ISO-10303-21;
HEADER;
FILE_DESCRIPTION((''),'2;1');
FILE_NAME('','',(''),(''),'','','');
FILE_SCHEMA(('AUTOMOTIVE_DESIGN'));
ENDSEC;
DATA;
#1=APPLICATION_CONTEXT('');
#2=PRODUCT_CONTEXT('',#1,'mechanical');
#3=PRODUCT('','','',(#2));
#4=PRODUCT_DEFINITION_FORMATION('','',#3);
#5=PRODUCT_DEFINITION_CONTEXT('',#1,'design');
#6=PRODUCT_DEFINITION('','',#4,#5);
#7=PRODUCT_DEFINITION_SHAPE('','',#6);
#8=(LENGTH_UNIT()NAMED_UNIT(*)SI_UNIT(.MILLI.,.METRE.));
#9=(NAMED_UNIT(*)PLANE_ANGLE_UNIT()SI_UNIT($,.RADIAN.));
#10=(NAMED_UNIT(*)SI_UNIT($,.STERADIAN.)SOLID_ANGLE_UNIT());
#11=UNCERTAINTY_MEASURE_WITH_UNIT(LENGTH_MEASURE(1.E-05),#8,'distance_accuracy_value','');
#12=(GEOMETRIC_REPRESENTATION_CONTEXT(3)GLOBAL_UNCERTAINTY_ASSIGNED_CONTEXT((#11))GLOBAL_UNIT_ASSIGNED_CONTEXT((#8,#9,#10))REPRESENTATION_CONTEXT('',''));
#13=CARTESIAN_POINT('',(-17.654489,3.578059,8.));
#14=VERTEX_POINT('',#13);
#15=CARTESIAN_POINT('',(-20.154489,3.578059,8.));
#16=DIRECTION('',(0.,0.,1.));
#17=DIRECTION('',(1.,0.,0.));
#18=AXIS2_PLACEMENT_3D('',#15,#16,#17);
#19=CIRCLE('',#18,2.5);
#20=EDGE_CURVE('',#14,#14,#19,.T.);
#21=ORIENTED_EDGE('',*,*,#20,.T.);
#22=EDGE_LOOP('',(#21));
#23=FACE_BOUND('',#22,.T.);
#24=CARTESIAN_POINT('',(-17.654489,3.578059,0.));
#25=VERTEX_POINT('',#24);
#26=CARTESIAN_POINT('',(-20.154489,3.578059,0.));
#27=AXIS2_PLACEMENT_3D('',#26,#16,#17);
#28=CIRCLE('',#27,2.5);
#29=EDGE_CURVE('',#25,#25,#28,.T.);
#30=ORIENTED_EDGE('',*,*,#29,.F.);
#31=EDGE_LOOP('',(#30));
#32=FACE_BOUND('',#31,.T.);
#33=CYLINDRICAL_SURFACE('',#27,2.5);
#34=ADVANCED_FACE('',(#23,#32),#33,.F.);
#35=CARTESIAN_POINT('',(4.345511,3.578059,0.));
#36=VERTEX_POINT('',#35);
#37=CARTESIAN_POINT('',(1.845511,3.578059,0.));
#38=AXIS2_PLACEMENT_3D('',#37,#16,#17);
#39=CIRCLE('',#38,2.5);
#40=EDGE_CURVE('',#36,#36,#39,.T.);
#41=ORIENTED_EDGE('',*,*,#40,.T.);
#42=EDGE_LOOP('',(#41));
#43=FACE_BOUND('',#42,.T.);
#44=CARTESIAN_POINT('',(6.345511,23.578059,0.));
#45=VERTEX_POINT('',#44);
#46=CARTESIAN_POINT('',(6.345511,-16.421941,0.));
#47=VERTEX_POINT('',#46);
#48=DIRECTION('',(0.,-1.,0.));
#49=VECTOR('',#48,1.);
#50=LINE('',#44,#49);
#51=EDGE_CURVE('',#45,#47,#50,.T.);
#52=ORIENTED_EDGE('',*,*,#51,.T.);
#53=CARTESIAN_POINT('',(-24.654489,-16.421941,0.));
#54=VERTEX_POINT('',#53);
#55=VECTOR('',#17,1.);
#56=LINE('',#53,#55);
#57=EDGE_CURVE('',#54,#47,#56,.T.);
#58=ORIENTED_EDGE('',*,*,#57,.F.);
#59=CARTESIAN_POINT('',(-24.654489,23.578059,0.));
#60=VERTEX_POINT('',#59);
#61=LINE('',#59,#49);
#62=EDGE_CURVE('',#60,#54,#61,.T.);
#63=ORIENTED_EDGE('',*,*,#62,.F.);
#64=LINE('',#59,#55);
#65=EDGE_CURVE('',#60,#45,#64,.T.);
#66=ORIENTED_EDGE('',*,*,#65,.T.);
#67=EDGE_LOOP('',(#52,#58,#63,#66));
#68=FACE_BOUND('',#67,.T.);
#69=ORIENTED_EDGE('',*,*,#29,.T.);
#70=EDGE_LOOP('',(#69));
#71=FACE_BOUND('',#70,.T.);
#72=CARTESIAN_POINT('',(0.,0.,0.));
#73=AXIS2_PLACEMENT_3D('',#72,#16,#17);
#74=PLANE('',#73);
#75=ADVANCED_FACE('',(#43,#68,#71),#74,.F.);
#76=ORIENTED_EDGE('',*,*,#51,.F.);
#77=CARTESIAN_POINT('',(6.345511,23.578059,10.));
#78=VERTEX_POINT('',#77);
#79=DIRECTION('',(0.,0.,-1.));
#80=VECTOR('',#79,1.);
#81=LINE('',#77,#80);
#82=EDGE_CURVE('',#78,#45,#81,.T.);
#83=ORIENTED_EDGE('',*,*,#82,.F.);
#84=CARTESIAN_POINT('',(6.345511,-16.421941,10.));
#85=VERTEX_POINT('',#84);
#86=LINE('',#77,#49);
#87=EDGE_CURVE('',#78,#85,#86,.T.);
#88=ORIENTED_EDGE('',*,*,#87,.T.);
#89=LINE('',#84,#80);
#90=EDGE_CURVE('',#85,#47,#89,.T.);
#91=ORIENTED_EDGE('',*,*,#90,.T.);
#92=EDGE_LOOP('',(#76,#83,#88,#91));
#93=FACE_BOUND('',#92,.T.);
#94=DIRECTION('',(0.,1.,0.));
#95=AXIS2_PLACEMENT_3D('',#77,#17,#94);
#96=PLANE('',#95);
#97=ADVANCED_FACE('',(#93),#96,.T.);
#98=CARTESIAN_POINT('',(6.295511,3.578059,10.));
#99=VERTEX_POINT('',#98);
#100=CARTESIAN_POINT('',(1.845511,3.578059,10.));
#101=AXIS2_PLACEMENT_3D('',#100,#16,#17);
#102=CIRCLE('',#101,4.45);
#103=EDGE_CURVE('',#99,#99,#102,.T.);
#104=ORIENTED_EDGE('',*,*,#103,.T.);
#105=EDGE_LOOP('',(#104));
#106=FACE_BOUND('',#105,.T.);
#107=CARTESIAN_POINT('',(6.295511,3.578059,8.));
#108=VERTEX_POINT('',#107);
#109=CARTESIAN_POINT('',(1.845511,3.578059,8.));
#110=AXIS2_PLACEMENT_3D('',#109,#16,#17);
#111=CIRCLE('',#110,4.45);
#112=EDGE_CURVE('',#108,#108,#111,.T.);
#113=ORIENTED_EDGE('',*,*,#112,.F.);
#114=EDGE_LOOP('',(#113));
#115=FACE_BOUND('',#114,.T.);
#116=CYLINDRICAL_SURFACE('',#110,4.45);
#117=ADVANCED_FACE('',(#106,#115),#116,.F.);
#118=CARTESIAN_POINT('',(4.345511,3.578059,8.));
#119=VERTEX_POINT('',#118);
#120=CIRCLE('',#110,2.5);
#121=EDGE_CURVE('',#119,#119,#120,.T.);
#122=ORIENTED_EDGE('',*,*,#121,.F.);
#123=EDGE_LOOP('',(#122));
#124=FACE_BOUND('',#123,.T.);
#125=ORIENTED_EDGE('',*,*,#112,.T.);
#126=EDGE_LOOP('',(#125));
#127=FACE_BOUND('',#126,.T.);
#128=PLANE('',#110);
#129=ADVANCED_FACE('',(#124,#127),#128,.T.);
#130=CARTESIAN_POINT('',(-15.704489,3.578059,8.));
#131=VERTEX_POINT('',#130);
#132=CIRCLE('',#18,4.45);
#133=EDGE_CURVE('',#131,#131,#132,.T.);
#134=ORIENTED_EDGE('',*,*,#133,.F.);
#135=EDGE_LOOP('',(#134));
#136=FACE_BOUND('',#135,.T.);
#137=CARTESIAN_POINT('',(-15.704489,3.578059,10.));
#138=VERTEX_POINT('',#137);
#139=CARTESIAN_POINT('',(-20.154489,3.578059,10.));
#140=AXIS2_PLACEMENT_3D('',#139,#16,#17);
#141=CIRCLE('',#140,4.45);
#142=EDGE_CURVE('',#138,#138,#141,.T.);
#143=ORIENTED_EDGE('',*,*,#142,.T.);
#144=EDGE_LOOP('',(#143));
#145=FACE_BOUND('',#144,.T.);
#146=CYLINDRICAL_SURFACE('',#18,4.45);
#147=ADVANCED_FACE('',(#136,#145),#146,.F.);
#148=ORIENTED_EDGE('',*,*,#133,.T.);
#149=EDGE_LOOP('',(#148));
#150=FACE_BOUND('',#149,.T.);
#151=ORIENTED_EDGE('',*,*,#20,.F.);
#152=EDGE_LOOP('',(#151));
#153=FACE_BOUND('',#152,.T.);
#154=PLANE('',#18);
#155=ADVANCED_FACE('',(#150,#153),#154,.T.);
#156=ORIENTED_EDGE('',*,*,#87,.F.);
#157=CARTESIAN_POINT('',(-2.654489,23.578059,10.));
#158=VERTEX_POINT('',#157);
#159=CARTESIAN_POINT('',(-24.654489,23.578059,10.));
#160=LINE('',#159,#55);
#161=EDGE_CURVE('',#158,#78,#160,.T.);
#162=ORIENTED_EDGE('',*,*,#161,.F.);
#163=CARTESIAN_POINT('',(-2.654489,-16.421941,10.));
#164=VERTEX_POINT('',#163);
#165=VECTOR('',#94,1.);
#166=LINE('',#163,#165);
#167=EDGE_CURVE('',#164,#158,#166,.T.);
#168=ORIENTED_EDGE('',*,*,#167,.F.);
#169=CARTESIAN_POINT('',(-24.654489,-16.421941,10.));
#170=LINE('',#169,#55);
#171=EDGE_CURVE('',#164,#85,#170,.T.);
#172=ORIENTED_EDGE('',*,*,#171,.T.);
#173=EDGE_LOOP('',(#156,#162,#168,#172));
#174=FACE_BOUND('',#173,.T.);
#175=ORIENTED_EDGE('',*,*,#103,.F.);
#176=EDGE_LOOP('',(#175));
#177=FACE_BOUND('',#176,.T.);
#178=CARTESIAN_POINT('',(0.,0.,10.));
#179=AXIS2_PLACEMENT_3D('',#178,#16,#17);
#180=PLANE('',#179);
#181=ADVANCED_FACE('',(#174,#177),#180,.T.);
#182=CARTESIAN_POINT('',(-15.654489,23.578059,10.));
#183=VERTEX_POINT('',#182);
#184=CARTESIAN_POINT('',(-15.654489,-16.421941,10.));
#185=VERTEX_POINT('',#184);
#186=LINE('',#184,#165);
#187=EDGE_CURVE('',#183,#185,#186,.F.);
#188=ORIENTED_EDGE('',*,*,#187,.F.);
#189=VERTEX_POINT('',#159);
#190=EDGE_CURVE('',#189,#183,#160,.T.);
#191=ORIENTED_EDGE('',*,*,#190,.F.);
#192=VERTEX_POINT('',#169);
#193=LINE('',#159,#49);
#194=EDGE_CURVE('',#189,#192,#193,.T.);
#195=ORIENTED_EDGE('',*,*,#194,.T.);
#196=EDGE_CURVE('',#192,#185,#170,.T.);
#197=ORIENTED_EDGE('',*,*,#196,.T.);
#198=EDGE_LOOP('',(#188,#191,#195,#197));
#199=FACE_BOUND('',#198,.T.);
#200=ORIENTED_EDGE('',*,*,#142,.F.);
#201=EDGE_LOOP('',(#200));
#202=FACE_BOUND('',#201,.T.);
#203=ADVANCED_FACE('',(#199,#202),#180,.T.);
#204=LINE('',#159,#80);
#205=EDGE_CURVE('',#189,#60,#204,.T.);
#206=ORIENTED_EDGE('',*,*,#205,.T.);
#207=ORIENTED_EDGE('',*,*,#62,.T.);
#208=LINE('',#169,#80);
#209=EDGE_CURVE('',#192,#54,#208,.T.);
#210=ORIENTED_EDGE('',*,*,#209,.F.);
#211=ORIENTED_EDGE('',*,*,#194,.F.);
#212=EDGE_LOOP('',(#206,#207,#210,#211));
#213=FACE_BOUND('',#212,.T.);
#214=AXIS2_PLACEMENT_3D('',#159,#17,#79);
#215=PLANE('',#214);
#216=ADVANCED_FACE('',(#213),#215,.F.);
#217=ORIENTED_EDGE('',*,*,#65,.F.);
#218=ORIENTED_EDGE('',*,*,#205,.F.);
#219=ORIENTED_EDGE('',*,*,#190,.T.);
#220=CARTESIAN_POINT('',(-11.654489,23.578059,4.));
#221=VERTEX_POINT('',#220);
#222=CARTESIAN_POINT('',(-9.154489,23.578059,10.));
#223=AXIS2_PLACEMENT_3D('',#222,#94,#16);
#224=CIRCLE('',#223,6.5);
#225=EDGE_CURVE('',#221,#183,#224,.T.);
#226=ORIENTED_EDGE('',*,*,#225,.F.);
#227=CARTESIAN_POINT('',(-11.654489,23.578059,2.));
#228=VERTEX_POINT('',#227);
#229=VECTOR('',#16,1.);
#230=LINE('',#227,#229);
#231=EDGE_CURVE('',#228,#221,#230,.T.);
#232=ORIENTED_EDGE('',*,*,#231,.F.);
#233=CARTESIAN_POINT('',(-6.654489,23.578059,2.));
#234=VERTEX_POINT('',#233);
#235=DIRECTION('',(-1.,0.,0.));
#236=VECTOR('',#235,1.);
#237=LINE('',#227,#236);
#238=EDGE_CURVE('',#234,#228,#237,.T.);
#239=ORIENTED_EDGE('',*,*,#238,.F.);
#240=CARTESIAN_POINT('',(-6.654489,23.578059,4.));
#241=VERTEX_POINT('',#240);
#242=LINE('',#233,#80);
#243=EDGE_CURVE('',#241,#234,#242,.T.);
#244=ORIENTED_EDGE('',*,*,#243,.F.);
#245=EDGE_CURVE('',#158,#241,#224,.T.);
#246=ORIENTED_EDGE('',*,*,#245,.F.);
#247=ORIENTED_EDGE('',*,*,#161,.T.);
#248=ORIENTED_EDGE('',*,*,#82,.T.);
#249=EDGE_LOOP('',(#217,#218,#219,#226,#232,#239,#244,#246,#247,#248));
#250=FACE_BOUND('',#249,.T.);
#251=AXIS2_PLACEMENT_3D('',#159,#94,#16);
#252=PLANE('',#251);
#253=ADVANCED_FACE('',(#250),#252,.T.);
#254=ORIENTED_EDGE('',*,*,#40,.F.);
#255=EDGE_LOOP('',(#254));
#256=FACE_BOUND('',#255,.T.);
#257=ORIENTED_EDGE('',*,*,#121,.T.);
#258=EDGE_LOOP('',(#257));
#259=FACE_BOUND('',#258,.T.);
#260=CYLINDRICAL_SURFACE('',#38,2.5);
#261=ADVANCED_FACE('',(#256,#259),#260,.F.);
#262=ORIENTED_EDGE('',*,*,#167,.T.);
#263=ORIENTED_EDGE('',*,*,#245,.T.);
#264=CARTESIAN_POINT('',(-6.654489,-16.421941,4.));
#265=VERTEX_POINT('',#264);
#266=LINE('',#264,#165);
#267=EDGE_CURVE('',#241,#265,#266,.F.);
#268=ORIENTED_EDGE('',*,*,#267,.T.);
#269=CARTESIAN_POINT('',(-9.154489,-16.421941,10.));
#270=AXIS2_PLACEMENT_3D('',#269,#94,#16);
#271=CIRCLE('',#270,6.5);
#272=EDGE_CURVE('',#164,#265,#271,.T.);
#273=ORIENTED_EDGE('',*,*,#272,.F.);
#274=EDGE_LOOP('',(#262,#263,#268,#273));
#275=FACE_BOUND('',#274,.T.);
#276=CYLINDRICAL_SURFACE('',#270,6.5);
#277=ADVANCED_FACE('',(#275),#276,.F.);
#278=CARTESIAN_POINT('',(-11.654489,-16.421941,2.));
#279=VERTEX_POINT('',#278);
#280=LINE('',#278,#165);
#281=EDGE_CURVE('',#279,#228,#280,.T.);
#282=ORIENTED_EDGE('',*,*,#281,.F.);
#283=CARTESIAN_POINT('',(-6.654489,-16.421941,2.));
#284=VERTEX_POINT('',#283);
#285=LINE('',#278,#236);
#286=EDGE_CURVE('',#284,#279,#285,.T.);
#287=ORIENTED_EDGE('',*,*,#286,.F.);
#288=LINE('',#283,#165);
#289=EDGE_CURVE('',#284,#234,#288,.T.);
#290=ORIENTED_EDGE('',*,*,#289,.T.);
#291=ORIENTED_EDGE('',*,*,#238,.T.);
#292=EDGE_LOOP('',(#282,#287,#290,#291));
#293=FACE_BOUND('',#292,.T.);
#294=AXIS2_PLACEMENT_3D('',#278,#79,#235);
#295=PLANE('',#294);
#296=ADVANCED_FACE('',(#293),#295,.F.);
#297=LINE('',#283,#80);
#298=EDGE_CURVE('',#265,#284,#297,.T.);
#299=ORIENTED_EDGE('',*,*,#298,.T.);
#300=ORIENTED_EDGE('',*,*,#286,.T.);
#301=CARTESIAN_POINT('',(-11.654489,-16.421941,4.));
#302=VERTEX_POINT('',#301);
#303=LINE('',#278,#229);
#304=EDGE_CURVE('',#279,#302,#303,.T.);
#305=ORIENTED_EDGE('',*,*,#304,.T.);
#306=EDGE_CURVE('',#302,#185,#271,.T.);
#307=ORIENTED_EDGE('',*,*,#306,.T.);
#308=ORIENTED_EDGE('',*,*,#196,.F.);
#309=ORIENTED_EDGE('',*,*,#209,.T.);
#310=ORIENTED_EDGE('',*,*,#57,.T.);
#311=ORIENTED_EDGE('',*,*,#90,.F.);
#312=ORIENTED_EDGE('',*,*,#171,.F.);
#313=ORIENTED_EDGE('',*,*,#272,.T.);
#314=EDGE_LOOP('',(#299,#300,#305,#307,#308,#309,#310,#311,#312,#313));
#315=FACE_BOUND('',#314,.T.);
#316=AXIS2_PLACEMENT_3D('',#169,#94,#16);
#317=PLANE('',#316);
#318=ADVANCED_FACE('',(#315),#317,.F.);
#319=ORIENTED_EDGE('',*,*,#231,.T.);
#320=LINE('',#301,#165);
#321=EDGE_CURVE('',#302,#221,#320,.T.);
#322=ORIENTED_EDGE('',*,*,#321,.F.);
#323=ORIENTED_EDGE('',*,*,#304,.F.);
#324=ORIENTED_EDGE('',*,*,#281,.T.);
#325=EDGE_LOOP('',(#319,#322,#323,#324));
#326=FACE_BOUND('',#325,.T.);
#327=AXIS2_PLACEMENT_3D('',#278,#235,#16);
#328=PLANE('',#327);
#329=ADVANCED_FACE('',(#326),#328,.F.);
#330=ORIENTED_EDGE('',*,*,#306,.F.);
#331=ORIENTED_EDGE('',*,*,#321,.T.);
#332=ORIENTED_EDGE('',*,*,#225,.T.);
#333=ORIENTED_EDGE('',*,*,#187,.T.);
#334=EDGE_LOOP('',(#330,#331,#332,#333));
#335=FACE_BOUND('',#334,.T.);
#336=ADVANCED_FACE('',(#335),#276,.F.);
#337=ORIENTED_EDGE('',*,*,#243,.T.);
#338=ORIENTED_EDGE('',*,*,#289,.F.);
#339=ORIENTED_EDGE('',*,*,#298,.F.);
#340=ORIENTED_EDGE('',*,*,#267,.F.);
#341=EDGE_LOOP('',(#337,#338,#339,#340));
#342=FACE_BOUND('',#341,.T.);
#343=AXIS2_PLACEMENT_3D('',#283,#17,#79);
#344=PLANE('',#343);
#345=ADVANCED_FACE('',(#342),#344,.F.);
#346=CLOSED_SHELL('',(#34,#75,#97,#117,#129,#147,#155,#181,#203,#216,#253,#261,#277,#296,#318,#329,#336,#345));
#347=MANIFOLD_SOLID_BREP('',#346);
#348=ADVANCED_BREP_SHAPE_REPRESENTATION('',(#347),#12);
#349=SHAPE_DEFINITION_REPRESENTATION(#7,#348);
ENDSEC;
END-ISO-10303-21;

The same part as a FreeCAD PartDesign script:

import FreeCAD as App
import Part
import Sketcher

V = App.Vector


def add_polygon(sketch, points):
    """Adds a closed chain of lines whose ends are joined by coincident constraints."""
    first, n = sketch.GeometryCount, len(points)
    for a, b in zip(points, points[1:] + points[:1]):
        sketch.addGeometry(Part.LineSegment(App.Vector(*a, 0), App.Vector(*b, 0)), False)
    for i in range(n):
        sketch.addConstraint(Sketcher.Constraint("Coincident", first + i, 2, first + (i + 1) % n, 1))

doc = App.newDocument("Part")
body = doc.addObject("PartDesign::Body", "Body")

# Sketch on XY plane
sketch1 = body.newObject("Sketcher::SketchObject", "Sketch")
sketch1.AttachmentSupport = (doc.getObject("XY_Plane"), [""])
sketch1.MapMode = "FlatFace"
add_polygon(sketch1, [(-25, 24), (-25, -16), (6, -16), (6, 24)])  # lines 0-3
sketch1.addConstraint([
    Sketcher.Constraint("Vertical", 0),
    Sketcher.Constraint("Horizontal", 1),
    Sketcher.Constraint("Vertical", 2),
    Sketcher.Constraint("Horizontal", 3),
    Sketcher.Constraint("DistanceX", 1, 1, 1, 2, 31.0),
    Sketcher.Constraint("DistanceY", 0, 2, 0, 1, 40.0),
    Sketcher.Constraint("DistanceX", 0, 2, -1, 1, 24.654489),
    Sketcher.Constraint("DistanceY", 0, 2, -1, 1, 16.421941),
])
pad1 = body.newObject("PartDesign::Pad", "Pad")
pad1.Profile = sketch1
pad1.Length = 10

# Sketch on XZ plane
sketch2 = body.newObject("Sketcher::SketchObject", "Sketch001")
sketch2.AttachmentSupport = (doc.getObject("XZ_Plane"), [""])
sketch2.MapMode = "FlatFace"
sketch2.AttachmentOffset = App.Placement(V(0, 0, -23.578059), App.Rotation())
sketch2.addGeometry(Part.Circle(V(-9, 10, 0), V(0, 0, 1), 6), False)
sketch2.addConstraint([
    Sketcher.Constraint("Diameter", 0, 13.0),
    Sketcher.Constraint("DistanceY", -1, 1, 0, 3, 10.0),
    Sketcher.Constraint("DistanceX", 0, 3, -1, 1, 9.154489),
])
pocket1 = body.newObject("PartDesign::Pocket", "Pocket")
pocket1.Profile = sketch2
pocket1.Type = "ThroughAll"
pocket1.Reversed = True

# Sketch on XY plane
sketch3 = body.newObject("Sketcher::SketchObject", "Sketch002")
sketch3.AttachmentSupport = (doc.getObject("XY_Plane"), [""])
sketch3.MapMode = "FlatFace"
sketch3.AttachmentOffset = App.Placement(V(0, 0, 10), App.Rotation())
sketch3.addGeometry([
    Part.Circle(V(-20.2, 3.6, 0), V(0, 0, 1), 2.5),
    Part.Circle(V(1.8, 3.6, 0), V(0, 0, 1), 2.5),
], False)
sketch3.addConstraint([
    Sketcher.Constraint("Equal", 0, 1),
    Sketcher.Constraint("Horizontal", 0, 3, 1, 3),
    Sketcher.Constraint("Diameter", 0, 5.0),
    Sketcher.Constraint("DistanceX", 0, 3, 1, 3, 22.0),
    Sketcher.Constraint("DistanceX", 0, 3, -1, 1, 20.154489),
    Sketcher.Constraint("DistanceY", -1, 1, 0, 3, 3.578059),
])
pocket2 = body.newObject("PartDesign::Pocket", "Pocket001")
pocket2.Profile = sketch3
pocket2.Type = "ThroughAll"

# Sketch on XY plane
sketch4 = body.newObject("Sketcher::SketchObject", "Sketch003")
sketch4.AttachmentSupport = (doc.getObject("XY_Plane"), [""])
sketch4.MapMode = "FlatFace"
sketch4.AttachmentOffset = App.Placement(V(0, 0, 10), App.Rotation())
sketch4.addGeometry([
    Part.Circle(V(-20.2, 3.6, 0), V(0, 0, 1), 4.5),
    Part.Circle(V(-20.2, 3.6, 0), V(0, 0, 1), 2.5),
    Part.Circle(V(1.8, 3.6, 0), V(0, 0, 1), 4.5),
    Part.Circle(V(1.8, 3.6, 0), V(0, 0, 1), 2.5),
], False)
sketch4.addConstraint([
    Sketcher.Constraint("Coincident", 1, 3, 0, 3),
    Sketcher.Constraint("Coincident", 3, 3, 2, 3),
    Sketcher.Constraint("Equal", 0, 2),
    Sketcher.Constraint("Equal", 1, 3),
    Sketcher.Constraint("Horizontal", 1, 3, 2, 3),
    Sketcher.Constraint("Diameter", 1, 5.0),
    Sketcher.Constraint("Diameter", 0, 8.9),
    Sketcher.Constraint("DistanceX", 0, 3, 2, 3, 22.0),
    Sketcher.Constraint("DistanceX", 0, 3, -1, 1, 20.154489),
    Sketcher.Constraint("DistanceY", -1, 1, 0, 3, 3.578059),
])
pocket3 = body.newObject("PartDesign::Pocket", "Pocket002")
pocket3.Profile = sketch4
pocket3.Length = 2

# Sketch on XZ plane
sketch5 = body.newObject("Sketcher::SketchObject", "Sketch004")
sketch5.AttachmentSupport = (doc.getObject("XZ_Plane"), [""])
sketch5.MapMode = "FlatFace"
sketch5.AttachmentOffset = App.Placement(V(0, 0, -23.578059), App.Rotation())
add_polygon(sketch5, [(-11.7, 2), (-11.7, 5), (-6.7, 5), (-6.7, 2)])  # lines 0-3
sketch5.addConstraint([
    Sketcher.Constraint("Vertical", 0),
    Sketcher.Constraint("Horizontal", 1),
    Sketcher.Constraint("Vertical", 2),
    Sketcher.Constraint("Horizontal", 3),
    Sketcher.Constraint("DistanceX", 1, 1, 1, 2, 5.0),
    Sketcher.Constraint("DistanceY", 0, 1, 0, 2, 3.0),
    Sketcher.Constraint("DistanceY", -1, 1, 0, 2, 5.0),
    Sketcher.Constraint("DistanceX", 0, 2, -1, 1, 11.654489),
])
pocket4 = body.newObject("PartDesign::Pocket", "Pocket003")
pocket4.Profile = sketch5
pocket4.Type = "ThroughAll"
pocket4.Reversed = True

doc.recompute()
